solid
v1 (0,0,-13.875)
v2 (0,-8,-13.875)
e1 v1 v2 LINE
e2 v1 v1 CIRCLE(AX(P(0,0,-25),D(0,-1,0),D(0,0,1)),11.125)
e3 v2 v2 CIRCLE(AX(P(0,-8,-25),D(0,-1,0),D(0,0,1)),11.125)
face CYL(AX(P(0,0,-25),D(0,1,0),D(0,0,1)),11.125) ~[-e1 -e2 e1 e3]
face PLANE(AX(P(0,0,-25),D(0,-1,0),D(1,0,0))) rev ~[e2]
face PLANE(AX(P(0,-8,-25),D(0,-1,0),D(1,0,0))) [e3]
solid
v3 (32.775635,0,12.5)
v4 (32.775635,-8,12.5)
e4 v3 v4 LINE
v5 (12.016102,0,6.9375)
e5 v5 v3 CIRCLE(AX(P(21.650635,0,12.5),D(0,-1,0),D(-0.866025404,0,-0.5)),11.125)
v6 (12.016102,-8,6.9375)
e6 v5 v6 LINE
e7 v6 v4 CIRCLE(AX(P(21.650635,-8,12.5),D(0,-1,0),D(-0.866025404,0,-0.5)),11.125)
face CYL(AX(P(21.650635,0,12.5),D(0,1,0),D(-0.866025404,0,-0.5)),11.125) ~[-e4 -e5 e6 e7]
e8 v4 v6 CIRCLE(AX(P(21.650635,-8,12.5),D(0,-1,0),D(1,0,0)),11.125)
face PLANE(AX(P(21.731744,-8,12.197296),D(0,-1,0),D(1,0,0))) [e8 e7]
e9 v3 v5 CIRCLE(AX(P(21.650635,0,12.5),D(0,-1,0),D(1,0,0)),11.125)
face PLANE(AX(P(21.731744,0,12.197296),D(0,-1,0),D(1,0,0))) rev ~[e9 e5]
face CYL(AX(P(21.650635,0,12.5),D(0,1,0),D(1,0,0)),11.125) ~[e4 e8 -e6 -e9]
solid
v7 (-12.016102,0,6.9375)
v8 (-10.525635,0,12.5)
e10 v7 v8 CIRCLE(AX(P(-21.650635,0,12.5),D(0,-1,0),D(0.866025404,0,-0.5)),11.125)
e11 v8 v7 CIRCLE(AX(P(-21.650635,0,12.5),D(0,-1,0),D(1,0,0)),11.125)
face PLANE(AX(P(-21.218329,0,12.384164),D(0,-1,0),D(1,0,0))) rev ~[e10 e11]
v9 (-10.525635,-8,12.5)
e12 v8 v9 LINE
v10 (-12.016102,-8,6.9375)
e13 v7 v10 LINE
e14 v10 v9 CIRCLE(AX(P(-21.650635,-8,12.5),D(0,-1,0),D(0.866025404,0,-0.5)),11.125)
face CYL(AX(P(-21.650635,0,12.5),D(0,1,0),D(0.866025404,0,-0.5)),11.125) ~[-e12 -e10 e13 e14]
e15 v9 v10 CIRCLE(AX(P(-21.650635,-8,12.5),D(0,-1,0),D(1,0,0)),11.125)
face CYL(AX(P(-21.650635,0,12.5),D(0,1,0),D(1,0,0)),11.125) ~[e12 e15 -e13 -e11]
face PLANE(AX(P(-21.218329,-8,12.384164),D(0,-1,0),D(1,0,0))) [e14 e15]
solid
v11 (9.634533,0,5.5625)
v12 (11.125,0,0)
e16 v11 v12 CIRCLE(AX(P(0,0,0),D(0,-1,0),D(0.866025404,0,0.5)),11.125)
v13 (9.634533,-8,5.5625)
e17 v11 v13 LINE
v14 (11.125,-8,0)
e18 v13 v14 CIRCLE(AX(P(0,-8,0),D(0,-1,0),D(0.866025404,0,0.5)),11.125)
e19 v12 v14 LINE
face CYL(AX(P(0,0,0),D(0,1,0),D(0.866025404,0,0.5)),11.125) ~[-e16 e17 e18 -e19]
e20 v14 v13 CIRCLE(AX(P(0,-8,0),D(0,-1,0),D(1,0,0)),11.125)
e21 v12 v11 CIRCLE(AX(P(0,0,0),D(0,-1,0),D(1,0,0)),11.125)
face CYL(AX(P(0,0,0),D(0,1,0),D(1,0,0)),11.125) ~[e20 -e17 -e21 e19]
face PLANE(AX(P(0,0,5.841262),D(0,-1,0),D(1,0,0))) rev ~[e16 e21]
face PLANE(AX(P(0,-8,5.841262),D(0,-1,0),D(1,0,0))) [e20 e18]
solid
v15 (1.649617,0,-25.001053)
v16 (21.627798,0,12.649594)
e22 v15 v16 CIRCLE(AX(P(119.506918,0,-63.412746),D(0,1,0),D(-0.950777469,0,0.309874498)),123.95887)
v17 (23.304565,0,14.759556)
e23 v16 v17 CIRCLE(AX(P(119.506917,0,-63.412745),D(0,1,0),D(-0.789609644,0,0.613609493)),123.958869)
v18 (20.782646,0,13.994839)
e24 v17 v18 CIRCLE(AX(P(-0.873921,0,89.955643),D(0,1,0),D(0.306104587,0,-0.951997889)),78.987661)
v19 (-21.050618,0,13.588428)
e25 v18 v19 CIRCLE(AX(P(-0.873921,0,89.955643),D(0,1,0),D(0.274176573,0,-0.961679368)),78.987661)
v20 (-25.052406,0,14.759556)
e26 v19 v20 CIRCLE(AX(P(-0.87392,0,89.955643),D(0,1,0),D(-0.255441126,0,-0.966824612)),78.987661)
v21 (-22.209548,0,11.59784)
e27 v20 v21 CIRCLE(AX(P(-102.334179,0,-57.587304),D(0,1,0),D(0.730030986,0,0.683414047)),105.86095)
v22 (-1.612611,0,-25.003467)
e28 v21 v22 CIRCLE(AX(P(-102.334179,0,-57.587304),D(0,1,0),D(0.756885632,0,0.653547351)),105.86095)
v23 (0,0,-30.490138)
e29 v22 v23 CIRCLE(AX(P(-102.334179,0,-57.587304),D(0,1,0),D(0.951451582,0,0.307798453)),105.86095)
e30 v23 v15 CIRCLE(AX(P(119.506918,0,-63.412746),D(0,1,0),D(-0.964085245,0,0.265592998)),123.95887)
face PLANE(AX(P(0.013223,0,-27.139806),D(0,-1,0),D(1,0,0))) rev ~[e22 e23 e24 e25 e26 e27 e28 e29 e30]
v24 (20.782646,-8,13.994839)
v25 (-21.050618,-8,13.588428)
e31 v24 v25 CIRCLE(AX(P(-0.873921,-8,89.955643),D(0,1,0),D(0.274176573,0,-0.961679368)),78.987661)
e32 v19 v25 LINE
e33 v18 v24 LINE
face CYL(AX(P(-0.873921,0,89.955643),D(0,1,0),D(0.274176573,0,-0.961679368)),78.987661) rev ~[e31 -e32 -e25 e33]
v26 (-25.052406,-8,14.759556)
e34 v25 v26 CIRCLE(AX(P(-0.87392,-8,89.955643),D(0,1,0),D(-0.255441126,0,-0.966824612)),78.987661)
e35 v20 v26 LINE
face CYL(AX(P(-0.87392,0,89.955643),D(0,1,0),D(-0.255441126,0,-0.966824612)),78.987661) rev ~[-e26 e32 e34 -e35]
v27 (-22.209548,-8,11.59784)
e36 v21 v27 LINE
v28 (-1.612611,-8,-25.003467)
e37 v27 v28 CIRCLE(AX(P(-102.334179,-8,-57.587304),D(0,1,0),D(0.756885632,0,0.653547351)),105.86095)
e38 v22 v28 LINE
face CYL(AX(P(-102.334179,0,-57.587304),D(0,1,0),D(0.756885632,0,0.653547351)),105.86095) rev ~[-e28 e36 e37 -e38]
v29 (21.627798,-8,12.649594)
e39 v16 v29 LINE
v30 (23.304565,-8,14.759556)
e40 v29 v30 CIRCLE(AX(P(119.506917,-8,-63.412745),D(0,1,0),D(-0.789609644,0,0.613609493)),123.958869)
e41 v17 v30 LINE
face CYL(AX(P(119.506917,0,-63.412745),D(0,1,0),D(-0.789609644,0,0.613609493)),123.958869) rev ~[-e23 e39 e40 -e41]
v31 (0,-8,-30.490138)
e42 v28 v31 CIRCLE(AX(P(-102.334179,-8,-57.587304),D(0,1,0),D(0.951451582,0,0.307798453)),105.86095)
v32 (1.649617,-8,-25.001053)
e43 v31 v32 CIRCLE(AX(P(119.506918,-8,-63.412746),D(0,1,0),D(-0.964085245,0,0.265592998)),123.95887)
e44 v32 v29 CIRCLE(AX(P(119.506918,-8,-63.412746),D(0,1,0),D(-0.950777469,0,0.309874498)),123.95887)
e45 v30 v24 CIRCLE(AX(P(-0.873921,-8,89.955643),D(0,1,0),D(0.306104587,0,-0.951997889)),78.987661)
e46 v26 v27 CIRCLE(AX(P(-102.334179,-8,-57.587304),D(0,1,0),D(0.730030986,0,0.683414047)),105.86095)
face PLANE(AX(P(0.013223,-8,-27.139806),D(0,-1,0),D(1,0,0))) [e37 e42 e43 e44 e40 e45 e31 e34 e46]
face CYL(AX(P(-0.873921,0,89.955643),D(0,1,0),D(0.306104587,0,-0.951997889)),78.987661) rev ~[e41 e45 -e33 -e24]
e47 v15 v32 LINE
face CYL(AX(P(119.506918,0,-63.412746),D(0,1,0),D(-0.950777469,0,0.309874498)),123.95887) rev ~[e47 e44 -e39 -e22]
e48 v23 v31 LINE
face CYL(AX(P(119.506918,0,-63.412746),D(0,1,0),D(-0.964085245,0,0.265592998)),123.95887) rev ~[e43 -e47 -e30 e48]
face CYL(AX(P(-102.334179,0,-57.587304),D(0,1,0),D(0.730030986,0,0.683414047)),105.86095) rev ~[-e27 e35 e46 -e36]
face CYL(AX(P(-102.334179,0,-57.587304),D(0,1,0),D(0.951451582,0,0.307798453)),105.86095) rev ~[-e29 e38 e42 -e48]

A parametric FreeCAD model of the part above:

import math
import FreeCAD as App
import Part
import Sketcher
from FreeCAD import Vector
Q = App.Units.Quantity

doc = App.newDocument("Part")
body = doc.addObject("PartDesign::Body", "Body")

sketch1 = doc.addObject("Sketcher::SketchObject", "Sketch")
body.addObject(sketch1)
sketch1.AttachmentSupport = (doc.XZ_Plane, [""])
sketch1.MapMode = "FlatFace"
sketch1.addGeometry([
    Part.ArcOfCircle(Part.Circle(Vector(-102.3, -57.6, 0), Vector(0, 0, 1), 105.9), math.radians(14.83), math.radians(17.93)),
    Part.ArcOfCircle(Part.Circle(Vector(119.5, -63.4, 0), Vector(0, 0, 1), 124), math.radians(161.95), math.radians(164.6)),
    Part.ArcOfCircle(Part.Circle(Vector(119.5, -63.4, 0), Vector(0, 0, 1), 124), math.radians(142.15), math.radians(161.95)),
    Part.ArcOfCircle(Part.Circle(Vector(119.5, -63.4, 0), Vector(0, 0, 1), 124), math.radians(140.9), math.radians(142.15)),
    Part.ArcOfCircle(Part.Circle(Vector(-0.9, 90, 0), Vector(0, 0, 1), 79), math.radians(-74.09), math.radians(-72.18)),
    Part.ArcOfCircle(Part.Circle(Vector(-0.9, 90, 0), Vector(0, 0, 1), 79), math.radians(-105), math.radians(-74)),
    Part.ArcOfCircle(Part.Circle(Vector(-0.9, 90, 0), Vector(0, 0, 1), 79), math.radians(-107.82), math.radians(-104.8)),
    Part.ArcOfCircle(Part.Circle(Vector(-102.3, -57.6, 0), Vector(0, 0, 1), 105.9), math.radians(40.81), math.radians(43.11)),
    Part.ArcOfCircle(Part.Circle(Vector(-102.3, -57.6, 0), Vector(0, 0, 1), 105.9), math.radians(18), math.radians(41)),
], False)
sketch1.addConstraint([
    Sketcher.Constraint("Coincident", 0, 1, 1, 2),
    Sketcher.Constraint("Tangent", 1, 1, 2, 2),
    Sketcher.Constraint("Tangent", 2, 1, 3, 2),
    Sketcher.Constraint("Coincident", 3, 1, 4, 2),
    Sketcher.Constraint("Tangent", 4, 1, 5, 2),
    Sketcher.Constraint("Tangent", 5, 1, 6, 2),
    Sketcher.Constraint("Coincident", 6, 1, 7, 2),
    Sketcher.Constraint("Tangent", 7, 1, 8, 2),
    Sketcher.Constraint("Tangent", 8, 1, 0, 2),
    Sketcher.Constraint("Coincident", 3, 3, 1, 3),
    Sketcher.Constraint("Coincident", 6, 3, 4, 3),
    Sketcher.Constraint("Coincident", 7, 3, 0, 3),
    Sketcher.Constraint("PointOnObject", 0, 1, -2),
    Sketcher.Constraint("Horizontal", 3, 1, 6, 1),
    Sketcher.Constraint("Radius", 0, Q("105.86095 mm")),
    Sketcher.Constraint("Radius", 1, Q("123.95887 mm")),
    Sketcher.Constraint("Radius", 4, Q("78.987661 mm")),
    Sketcher.Constraint("DistanceY", 7, 1, 4, 1, Q("2.396999 mm")),
    Sketcher.Constraint("DistanceX", -1, 1, 2, 1, Q("21.627798 mm")),
    Sketcher.Constraint("DistanceX", 0, 3, -1, 1, Q("102.334179 mm")),
    Sketcher.Constraint("DistanceX", 4, 3, -1, 1, Q("0.873921 mm")),
    Sketcher.Constraint("DistanceY", -1, 1, 4, 1, Q("13.994839 mm")),
    Sketcher.Constraint("DistanceY", -1, 1, 5, 1, Q("13.588428 mm")),
    Sketcher.Constraint("DistanceX", 8, 1, -1, 1, Q("1.612611 mm")),
    Sketcher.Constraint("DistanceY", 1, 3, 0, 3, Q("5.825442 mm")),
    Sketcher.Constraint("DistanceY", 7, 3, 1, 1, Q("32.586251 mm")),
    Sketcher.Constraint("DistanceX", 4, 1, 3, 1, Q("2.521919 mm")),
])
pad1 = doc.addObject("PartDesign::Pad", "Pad")
body.addObject(pad1)
pad1.Profile = sketch1
pad1.Length = 8
body2 = doc.addObject("PartDesign::Body", "Body001")

sketch2 = doc.addObject("Sketcher::SketchObject", "Sketch001")
body2.addObject(sketch2)
sketch2.AttachmentSupport = (doc.getObject("XZ_Plane001"), [""])
sketch2.MapMode = "FlatFace"
sketch2.addGeometry(Part.Circle(Vector(0, -25, 0), Vector(0, 0, 1), 11), False)
sketch2.addConstraint([
    Sketcher.Constraint("PointOnObject", 0, 3, -2),
    Sketcher.Constraint("Diameter", 0, Q("22.25 mm")),
    Sketcher.Constraint("DistanceY", 0, 3, -1, 1, Q("25 mm")),
])
pad2 = doc.addObject("PartDesign::Pad", "Pad001")
body2.addObject(pad2)
pad2.Profile = sketch2
pad2.Length = 8
body3 = doc.addObject("PartDesign::Body", "Body002")

sketch3 = doc.addObject("Sketcher::SketchObject", "Sketch002")
body3.addObject(sketch3)
sketch3.AttachmentSupport = (doc.getObject("XZ_Plane002"), [""])
sketch3.MapMode = "FlatFace"
sketch3.addGeometry([
    Part.ArcOfCircle(Part.Circle(Vector(0, 0, 0), Vector(0, 0, 1), 11), math.radians(30), math.radians(360)),
    Part.ArcOfCircle(Part.Circle(Vector(0, 0, 0), Vector(0, 0, 1), 11), math.radians(0), math.radians(30)),
], False)
sketch3.addConstraint([
    Sketcher.Constraint("Tangent", 0, 1, 1, 2),
    Sketcher.Constraint("Coincident", 1, 1, 0, 2),
    Sketcher.Constraint("Coincident", 0, 3, -1, 1),
    Sketcher.Constraint("PointOnObject", 1, 1, -1),
    Sketcher.Constraint("Radius", 0, Q("11.125 mm")),
    Sketcher.Constraint("DistanceY", -1, 1, 0, 1, Q("5.5625 mm")),
])
pad3 = doc.addObject("PartDesign::Pad", "Pad002")
body3.addObject(pad3)
pad3.Profile = sketch3
pad3.Length = 8
body4 = doc.addObject("PartDesign::Body", "Body003")

sketch4 = doc.addObject("Sketcher::SketchObject", "Sketch003")
body4.addObject(sketch4)
sketch4.AttachmentSupport = (doc.getObject("XZ_Plane003"), [""])
sketch4.MapMode = "FlatFace"
sketch4.addGeometry([
    Part.ArcOfCircle(Part.Circle(Vector(-22, 12, 0), Vector(0, 0, 1), 11), math.radians(0), math.radians(330)),
    Part.ArcOfCircle(Part.Circle(Vector(-22, 12, 0), Vector(0, 0, 1), 11), math.radians(-30), math.radians(0)),
], False)
sketch4.addConstraint([
    Sketcher.Constraint("Tangent", 0, 1, 1, 2),
    Sketcher.Constraint("Coincident", 1, 1, 0, 2),
    Sketcher.Constraint("Horizontal", 1, 3, 0, 1),
    Sketcher.Constraint("Radius", 0, Q("11.125 mm")),
    Sketcher.Constraint("DistanceY", -1, 1, 0, 3, Q("12.5 mm")),
    Sketcher.Constraint("DistanceY", -1, 1, 1, 1, Q("6.9375 mm")),
    Sketcher.Constraint("DistanceX", 0, 3, -1, 1, Q("21.650635 mm")),
])
pad4 = doc.addObject("PartDesign::Pad", "Pad003")
body4.addObject(pad4)
pad4.Profile = sketch4
pad4.Length = 8
body5 = doc.addObject("PartDesign::Body", "Body004")

sketch5 = doc.addObject("Sketcher::SketchObject", "Sketch004")
body5.addObject(sketch5)
sketch5.AttachmentSupport = (doc.getObject("XZ_Plane004"), [""])
sketch5.MapMode = "FlatFace"
sketch5.addGeometry([
    Part.ArcOfCircle(Part.Circle(Vector(22, 12, 0), Vector(0, 0, 1), 11), math.radians(0), math.radians(210)),
    Part.ArcOfCircle(Part.Circle(Vector(22, 12, 0), Vector(0, 0, 1), 11), math.radians(-150), math.radians(0)),
], False)
sketch5.addConstraint([
    Sketcher.Constraint("Tangent", 0, 1, 1, 2),
    Sketcher.Constraint("Coincident", 1, 1, 0, 2),
    Sketcher.Constraint("Horizontal", 1, 3, 0, 1),
    Sketcher.Constraint("Radius", 0, Q("11.125 mm")),
    Sketcher.Constraint("DistanceY", -1, 1, 0, 3, Q("12.5 mm")),
    Sketcher.Constraint("DistanceY", -1, 1, 1, 1, Q("6.9375 mm")),
    Sketcher.Constraint("DistanceX", -1, 1, 0, 3, Q("21.650635 mm")),
])
pad5 = doc.addObject("PartDesign::Pad", "Pad004")
body5.addObject(pad5)
pad5.Profile = sketch5
pad5.Length = 8

doc.recompute()
